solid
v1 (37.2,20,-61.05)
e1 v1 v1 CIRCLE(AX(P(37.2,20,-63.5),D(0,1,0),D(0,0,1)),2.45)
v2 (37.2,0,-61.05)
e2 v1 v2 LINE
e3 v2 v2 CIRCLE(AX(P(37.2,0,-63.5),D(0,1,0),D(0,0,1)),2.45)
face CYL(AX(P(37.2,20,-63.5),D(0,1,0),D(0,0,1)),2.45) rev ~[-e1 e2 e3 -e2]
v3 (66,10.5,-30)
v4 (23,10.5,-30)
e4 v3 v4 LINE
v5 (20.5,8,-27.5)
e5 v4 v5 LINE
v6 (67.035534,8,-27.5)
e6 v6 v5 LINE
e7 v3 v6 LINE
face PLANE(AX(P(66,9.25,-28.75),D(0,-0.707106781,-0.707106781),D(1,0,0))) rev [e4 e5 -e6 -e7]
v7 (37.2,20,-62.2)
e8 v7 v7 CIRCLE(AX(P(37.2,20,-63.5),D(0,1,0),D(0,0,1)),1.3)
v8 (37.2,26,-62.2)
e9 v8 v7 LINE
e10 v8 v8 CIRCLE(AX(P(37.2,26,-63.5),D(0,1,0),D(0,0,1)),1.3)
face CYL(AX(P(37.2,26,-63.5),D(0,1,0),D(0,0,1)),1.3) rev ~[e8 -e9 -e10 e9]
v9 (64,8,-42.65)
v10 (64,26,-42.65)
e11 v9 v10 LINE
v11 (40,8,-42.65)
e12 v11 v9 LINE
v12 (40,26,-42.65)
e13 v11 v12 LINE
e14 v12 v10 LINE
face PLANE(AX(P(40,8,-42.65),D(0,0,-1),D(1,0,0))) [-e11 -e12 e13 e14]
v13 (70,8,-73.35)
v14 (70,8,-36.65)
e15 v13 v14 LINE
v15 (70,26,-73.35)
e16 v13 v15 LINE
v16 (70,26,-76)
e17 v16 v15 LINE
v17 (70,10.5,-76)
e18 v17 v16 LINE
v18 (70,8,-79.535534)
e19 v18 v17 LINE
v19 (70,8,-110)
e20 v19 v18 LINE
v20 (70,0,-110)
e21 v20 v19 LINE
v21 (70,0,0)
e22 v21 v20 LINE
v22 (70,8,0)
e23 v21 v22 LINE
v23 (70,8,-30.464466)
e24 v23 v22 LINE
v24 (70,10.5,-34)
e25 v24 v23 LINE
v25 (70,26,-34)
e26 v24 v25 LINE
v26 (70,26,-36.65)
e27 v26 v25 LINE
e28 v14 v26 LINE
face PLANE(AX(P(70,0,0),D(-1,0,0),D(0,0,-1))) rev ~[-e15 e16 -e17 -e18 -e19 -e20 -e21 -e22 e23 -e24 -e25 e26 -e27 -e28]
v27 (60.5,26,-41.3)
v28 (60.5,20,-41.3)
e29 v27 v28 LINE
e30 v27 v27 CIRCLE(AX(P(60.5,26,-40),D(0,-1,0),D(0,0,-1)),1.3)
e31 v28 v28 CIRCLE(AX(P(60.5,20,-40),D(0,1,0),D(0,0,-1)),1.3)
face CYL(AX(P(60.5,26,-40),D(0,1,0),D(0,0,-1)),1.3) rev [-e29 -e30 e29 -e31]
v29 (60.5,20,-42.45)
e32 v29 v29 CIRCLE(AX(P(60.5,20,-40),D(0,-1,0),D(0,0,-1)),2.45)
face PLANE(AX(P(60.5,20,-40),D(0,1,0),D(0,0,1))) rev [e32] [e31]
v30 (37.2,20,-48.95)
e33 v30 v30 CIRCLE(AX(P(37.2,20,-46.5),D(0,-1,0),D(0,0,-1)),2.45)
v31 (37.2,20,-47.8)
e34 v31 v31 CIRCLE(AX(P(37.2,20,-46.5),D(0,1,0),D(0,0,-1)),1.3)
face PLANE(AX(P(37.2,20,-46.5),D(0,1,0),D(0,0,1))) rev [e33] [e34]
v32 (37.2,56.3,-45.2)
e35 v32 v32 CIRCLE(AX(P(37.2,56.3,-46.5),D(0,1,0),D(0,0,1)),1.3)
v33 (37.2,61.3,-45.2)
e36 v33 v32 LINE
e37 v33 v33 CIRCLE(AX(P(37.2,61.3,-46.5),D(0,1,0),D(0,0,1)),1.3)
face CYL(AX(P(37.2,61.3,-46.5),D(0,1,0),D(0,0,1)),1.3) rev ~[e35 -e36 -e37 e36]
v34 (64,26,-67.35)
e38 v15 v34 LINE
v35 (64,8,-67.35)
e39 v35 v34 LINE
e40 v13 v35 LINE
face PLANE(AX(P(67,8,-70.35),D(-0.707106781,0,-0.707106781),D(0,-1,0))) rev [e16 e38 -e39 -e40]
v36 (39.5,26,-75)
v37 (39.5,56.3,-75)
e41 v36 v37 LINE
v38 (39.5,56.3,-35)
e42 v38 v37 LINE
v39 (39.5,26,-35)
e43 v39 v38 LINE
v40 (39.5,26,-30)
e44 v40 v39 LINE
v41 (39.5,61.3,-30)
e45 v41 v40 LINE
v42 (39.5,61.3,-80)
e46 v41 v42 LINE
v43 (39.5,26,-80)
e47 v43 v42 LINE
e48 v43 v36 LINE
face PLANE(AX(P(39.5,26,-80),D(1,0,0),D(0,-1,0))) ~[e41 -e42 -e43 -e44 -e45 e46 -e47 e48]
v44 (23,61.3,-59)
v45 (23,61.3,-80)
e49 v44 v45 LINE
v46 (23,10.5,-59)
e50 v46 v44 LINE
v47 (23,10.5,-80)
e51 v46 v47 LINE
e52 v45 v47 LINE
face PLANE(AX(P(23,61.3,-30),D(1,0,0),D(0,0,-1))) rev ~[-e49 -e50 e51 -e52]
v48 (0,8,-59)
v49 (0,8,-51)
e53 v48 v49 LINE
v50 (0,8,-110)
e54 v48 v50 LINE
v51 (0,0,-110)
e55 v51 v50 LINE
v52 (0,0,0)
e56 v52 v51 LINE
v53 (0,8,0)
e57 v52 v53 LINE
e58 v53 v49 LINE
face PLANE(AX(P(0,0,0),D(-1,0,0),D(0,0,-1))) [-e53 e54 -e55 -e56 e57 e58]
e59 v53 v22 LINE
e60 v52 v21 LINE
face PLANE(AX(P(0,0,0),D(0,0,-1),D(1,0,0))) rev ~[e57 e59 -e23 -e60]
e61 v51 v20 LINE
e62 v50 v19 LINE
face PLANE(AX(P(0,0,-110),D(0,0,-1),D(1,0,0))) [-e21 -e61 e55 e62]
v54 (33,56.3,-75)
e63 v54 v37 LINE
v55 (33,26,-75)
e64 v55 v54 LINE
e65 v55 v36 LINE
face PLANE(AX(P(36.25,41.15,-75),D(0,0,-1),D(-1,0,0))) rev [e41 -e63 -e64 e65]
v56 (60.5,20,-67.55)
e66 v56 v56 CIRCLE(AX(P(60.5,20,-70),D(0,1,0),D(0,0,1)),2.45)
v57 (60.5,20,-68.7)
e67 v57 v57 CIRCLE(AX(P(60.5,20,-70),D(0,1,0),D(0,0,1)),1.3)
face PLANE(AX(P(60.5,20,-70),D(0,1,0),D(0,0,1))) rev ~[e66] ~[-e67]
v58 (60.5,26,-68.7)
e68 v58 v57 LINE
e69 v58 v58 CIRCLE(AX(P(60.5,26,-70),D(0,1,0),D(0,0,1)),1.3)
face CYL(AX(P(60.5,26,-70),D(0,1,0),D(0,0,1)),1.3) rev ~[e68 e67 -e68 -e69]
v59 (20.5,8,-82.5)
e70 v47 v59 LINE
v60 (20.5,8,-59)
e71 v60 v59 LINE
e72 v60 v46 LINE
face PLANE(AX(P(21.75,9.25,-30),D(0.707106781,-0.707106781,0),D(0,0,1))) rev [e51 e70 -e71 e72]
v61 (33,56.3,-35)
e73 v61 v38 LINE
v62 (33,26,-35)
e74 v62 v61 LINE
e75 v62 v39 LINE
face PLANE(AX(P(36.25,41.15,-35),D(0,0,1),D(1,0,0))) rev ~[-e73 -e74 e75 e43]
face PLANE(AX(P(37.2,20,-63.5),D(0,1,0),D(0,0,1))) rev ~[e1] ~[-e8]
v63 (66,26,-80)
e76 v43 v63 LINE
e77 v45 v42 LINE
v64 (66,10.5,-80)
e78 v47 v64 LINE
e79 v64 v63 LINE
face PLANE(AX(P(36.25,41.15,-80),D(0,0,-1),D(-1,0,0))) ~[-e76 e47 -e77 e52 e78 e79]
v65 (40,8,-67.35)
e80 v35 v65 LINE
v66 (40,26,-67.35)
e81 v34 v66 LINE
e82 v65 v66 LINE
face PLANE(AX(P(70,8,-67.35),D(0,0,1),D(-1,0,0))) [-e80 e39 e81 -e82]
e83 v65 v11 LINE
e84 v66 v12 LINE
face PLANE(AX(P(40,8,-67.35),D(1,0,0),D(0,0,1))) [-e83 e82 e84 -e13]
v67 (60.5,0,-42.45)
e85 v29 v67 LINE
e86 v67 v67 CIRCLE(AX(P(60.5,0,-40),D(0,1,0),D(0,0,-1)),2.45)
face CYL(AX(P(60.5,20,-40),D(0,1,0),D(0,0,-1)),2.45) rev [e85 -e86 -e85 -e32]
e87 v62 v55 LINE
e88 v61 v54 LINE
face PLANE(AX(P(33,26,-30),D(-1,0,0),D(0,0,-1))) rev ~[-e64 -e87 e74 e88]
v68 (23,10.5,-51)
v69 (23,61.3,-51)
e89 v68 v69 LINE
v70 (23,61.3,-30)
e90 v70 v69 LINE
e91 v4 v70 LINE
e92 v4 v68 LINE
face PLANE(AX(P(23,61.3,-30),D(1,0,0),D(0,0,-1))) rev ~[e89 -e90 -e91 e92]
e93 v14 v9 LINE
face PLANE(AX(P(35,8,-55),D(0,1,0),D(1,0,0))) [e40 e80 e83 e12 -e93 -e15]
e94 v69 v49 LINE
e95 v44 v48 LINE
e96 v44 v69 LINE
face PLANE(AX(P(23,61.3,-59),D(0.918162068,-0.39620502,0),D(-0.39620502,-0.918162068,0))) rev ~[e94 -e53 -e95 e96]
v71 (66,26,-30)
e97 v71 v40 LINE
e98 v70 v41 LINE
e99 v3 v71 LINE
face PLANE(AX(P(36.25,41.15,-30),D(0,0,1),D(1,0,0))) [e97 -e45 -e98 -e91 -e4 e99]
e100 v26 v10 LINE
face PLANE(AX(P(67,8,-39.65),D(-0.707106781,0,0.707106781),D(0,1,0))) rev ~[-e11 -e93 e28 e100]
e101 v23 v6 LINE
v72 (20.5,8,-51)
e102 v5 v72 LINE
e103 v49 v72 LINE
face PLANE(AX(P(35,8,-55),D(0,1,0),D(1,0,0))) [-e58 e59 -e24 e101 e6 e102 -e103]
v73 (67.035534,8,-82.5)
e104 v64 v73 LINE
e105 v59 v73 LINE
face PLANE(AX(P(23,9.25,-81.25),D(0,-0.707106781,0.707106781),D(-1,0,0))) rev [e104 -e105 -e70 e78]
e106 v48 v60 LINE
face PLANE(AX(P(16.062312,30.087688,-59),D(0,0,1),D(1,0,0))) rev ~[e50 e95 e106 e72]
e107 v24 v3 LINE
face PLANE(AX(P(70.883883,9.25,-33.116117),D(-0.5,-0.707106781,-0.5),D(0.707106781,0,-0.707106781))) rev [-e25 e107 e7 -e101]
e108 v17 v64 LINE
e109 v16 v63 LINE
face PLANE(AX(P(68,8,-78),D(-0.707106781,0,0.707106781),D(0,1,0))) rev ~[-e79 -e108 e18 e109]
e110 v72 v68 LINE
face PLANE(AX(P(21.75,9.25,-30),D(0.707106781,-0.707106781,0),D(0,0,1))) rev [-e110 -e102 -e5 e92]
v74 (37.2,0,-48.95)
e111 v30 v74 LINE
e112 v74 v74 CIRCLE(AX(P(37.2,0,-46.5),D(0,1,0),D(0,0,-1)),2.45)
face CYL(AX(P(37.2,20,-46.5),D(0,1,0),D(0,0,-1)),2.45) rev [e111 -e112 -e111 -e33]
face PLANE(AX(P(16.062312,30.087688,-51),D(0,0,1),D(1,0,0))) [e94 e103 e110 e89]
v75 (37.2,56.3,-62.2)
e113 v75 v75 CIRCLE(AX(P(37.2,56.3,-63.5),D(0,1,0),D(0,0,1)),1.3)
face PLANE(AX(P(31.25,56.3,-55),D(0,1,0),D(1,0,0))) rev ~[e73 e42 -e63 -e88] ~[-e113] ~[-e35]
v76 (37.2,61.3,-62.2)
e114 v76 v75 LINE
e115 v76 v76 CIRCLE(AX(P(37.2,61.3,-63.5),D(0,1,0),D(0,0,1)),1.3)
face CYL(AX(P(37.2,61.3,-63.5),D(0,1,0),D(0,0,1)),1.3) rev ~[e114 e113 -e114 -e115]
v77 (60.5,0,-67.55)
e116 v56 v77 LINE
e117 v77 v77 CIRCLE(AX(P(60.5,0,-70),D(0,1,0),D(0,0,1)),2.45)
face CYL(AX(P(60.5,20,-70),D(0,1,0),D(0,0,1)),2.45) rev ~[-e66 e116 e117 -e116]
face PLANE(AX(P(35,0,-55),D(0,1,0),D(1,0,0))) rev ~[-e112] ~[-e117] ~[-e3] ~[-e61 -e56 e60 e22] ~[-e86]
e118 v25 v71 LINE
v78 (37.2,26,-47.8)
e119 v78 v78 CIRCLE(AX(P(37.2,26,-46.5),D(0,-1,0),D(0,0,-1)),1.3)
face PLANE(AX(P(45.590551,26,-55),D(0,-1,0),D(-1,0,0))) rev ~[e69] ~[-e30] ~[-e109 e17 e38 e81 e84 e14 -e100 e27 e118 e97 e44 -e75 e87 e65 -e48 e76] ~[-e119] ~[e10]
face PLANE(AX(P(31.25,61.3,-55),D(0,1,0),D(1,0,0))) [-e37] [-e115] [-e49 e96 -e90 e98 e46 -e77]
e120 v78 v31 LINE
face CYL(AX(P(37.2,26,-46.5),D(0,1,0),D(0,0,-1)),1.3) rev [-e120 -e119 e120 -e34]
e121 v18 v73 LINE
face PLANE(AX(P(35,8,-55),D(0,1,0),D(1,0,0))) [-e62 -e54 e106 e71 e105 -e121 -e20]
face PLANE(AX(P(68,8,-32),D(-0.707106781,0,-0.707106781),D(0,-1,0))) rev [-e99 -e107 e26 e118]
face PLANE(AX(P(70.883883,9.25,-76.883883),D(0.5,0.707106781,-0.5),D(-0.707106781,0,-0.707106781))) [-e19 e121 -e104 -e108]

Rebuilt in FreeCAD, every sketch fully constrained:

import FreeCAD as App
import Part
import Sketcher
from FreeCAD import Vector
Q = App.Units.Quantity


def edges_at(feature, points):
    """Names of the edges that pass closest to the given points."""
    edges = feature.Shape.Edges
    near = lambda p: min(range(len(edges)), key=lambda i: edges[i].distToShape(Part.Vertex(*p))[0])
    return sorted({f"Edge{near(p) + 1}" for p in points})


def add_polygon(sketch, points):
    """Adds a closed chain of lines whose ends are joined by coincident constraints."""
    first, n = sketch.GeometryCount, len(points)
    for a, b in zip(points, points[1:] + points[:1]):
        sketch.addGeometry(Part.LineSegment(App.Vector(*a, 0), App.Vector(*b, 0)), False)
    for i in range(n):
        sketch.addConstraint(Sketcher.Constraint("Coincident", first + i, 2, first + (i + 1) % n, 1))

doc = App.newDocument("Part")
body = doc.addObject("PartDesign::Body", "Body")

sketch1 = doc.addObject("Sketcher::SketchObject", "Sketch")
body.addObject(sketch1)
sketch1.AttachmentSupport = (doc.XZ_Plane, [""])
sketch1.MapMode = "FlatFace"
add_polygon(sketch1, [(0, -110), (0, 0), (70, 0), (70, -110)])
sketch1.addConstraint([
    Sketcher.Constraint("Vertical", 0),
    Sketcher.Constraint("Horizontal", 1),
    Sketcher.Constraint("Vertical", 2),
    Sketcher.Constraint("Horizontal", 3),
    Sketcher.Constraint("Coincident", 0, 2, -1, 1),
    Sketcher.Constraint("DistanceX", 1, 1, 1, 2, Q("70 mm")),
    Sketcher.Constraint("DistanceY", 0, 1, 0, 2, Q("110 mm")),
])
pad1 = doc.addObject("PartDesign::Pad", "Pad")
body.addObject(pad1)
pad1.Profile = sketch1
pad1.Length = 8
pad1.Reversed = True

sketch2 = doc.addObject("Sketcher::SketchObject", "Sketch001")
body.addObject(sketch2)
sketch2.AttachmentSupport = (doc.XZ_Plane, [""])
sketch2.MapMode = "FlatFace"
sketch2.AttachmentOffset = App.Placement(Vector(0, 0, -8), App.Rotation())
add_polygon(sketch2, [(40, -67.35), (70, -67.35), (70, -80), (23, -80), (23, -30), (70, -30), (70, -42.65), (40, -42.65)])
sketch2.addConstraint([
    Sketcher.Constraint("Horizontal", 0),
    Sketcher.Constraint("Vertical", 1),
    Sketcher.Constraint("Horizontal", 2),
    Sketcher.Constraint("Vertical", 3),
    Sketcher.Constraint("Horizontal", 4),
    Sketcher.Constraint("Vertical", 5),
    Sketcher.Constraint("Horizontal", 6),
    Sketcher.Constraint("Vertical", 7),
    Sketcher.Constraint("Vertical", 1, 2, 4, 2),
    Sketcher.Constraint("Equal", 1, 5),
    Sketcher.Constraint("DistanceX", 0, 1, 0, 2, Q("30 mm")),
    Sketcher.Constraint("DistanceX", 2, 2, 2, 1, Q("47 mm")),
    Sketcher.Constraint("DistanceY", 3, 1, 3, 2, Q("50 mm")),
    Sketcher.Constraint("DistanceY", 7, 2, 7, 1, Q("24.7 mm")),
    Sketcher.Constraint("DistanceX", -1, 1, 0, 2, Q("70 mm")),
    Sketcher.Constraint("DistanceY", 1, 2, -1, 1, Q("80 mm")),
])
pad2 = doc.addObject("PartDesign::Pad", "Pad001")
body.addObject(pad2)
pad2.Profile = sketch2
pad2.Length = 18
pad2.Reversed = True

sketch3 = doc.addObject("Sketcher::SketchObject", "Sketch002")
body.addObject(sketch3)
sketch3.AttachmentSupport = (doc.XZ_Plane, [""])
sketch3.MapMode = "FlatFace"
sketch3.AttachmentOffset = App.Placement(Vector(0, 0, -26), App.Rotation())
sketch3.addGeometry([
    Part.Circle(Vector(60.5, -70, 0), Vector(0, 0, 1), 1.3),
    Part.Circle(Vector(37.2, -63.5, 0), Vector(0, 0, 1), 1.3),
], False)
sketch3.addConstraint([
    Sketcher.Constraint("Equal", 0, 1),
    Sketcher.Constraint("Diameter", 0, Q("2.6 mm")),
    Sketcher.Constraint("DistanceY", 0, 3, -1, 1, Q("70 mm")),
    Sketcher.Constraint("DistanceX", -1, 1, 0, 3, Q("60.5 mm")),
    Sketcher.Constraint("DistanceX", -1, 1, 1, 3, Q("37.2 mm")),
    Sketcher.Constraint("DistanceY", 1, 3, -1, 1, Q("63.5 mm")),
])
pocket1 = doc.addObject("PartDesign::Pocket", "Pocket")
body.addObject(pocket1)
pocket1.Profile = sketch3
pocket1.Type = "ThroughAll"
pocket1.Reversed = True

sketch4 = doc.addObject("Sketcher::SketchObject", "Sketch003")
body.addObject(sketch4)
sketch4.AttachmentSupport = (doc.XZ_Plane, [""])
sketch4.MapMode = "FlatFace"
sketch4.AttachmentOffset = App.Placement(Vector(0, 0, -20), App.Rotation())
sketch4.addGeometry([
    Part.Circle(Vector(37.2, -63.5, 0), Vector(0, 0, 1), 2.45),
    Part.Circle(Vector(60.5, -70, 0), Vector(0, 0, 1), 2.45),
], False)
sketch4.addConstraint([
    Sketcher.Constraint("Equal", 0, 1),
    Sketcher.Constraint("Diameter", 0, Q("4.9 mm")),
    Sketcher.Constraint("DistanceY", 1, 3, -1, 1, Q("70 mm")),
    Sketcher.Constraint("DistanceX", -1, 1, 0, 3, Q("37.2 mm")),
    Sketcher.Constraint("DistanceY", 0, 3, -1, 1, Q("63.5 mm")),
    Sketcher.Constraint("DistanceX", -1, 1, 1, 3, Q("60.5 mm")),
])
pocket2 = doc.addObject("PartDesign::Pocket", "Pocket001")
body.addObject(pocket2)
pocket2.Profile = sketch4
pocket2.Type = "ThroughAll"
pocket2.Reversed = True
doc.recompute()

datumplane = doc.addObject("PartDesign::Plane", "DatumPlane")
body.addObject(datumplane)
datumplane.AttachmentSupport = (doc.XY_Plane, [""])
datumplane.MapMode = "FlatFace"
datumplane.AttachmentOffset = App.Placement(Vector(0, 0, -55), App.Rotation())
mirrored = doc.addObject("PartDesign::Mirrored", "Mirrored")
body.addObject(mirrored)
mirrored.Originals = [pocket1, pocket2]
mirrored.MirrorPlane = (datumplane, [""])
body.Tip = mirrored
doc.recompute()

chamfer = doc.addObject("PartDesign::Chamfer", "Chamfer")
body.addObject(chamfer)
chamfer.Base = (mirrored, edges_at(mirrored, [(70, 17, -67.35), (70, 17, -42.65)]))
chamfer.Size = 6
doc.recompute()

chamfer2 = doc.addObject("PartDesign::Chamfer", "Chamfer001")
body.addObject(chamfer2)
chamfer2.Base = (chamfer, edges_at(chamfer, [(70, 17, -80), (70, 17, -30)]))
chamfer2.Size = 4
doc.recompute()

chamfer3 = doc.addObject("PartDesign::Chamfer", "Chamfer002")
body.addObject(chamfer3)
chamfer3.Base = (chamfer2, edges_at(chamfer2, [
    (44.5, 8, -80),
    (68, 8, -78),
    (68, 8, -32),
    (23, 8, -55),
    (44.5, 8, -30),
]))
chamfer3.Size = 2.5

sketch5 = doc.addObject("Sketcher::SketchObject", "Sketch004")
body.addObject(sketch5)
sketch5.AttachmentSupport = (doc.XZ_Plane, [""])
sketch5.MapMode = "FlatFace"
sketch5.AttachmentOffset = App.Placement(Vector(0, 0, -26), App.Rotation())
add_polygon(sketch5, [(23, -80), (23, -30), (33, -30), (33, -80)])
sketch5.addConstraint([
    Sketcher.Constraint("Vertical", 0),
    Sketcher.Constraint("Horizontal", 1),
    Sketcher.Constraint("Vertical", 2),
    Sketcher.Constraint("Horizontal", 3),
    Sketcher.Constraint("DistanceX", 1, 1, 1, 2, Q("10 mm")),
    Sketcher.Constraint("DistanceY", 0, 1, 0, 2, Q("50 mm")),
    Sketcher.Constraint("DistanceX", -1, 1, 0, 2, Q("23 mm")),
    Sketcher.Constraint("DistanceY", 0, 2, -1, 1, Q("30 mm")),
])
pad3 = doc.addObject("PartDesign::Pad", "Pad002")
body.addObject(pad3)
pad3.Profile = sketch5
pad3.Length = 30.3
pad3.Reversed = True

sketch6 = doc.addObject("Sketcher::SketchObject", "Sketch005")
body.addObject(sketch6)
sketch6.AttachmentSupport = (doc.XZ_Plane, [""])
sketch6.MapMode = "FlatFace"
sketch6.AttachmentOffset = App.Placement(Vector(0, 0, -61.3), App.Rotation())
add_polygon(sketch6, [(23, -80), (23, -30), (39.5, -30), (39.5, -80)])
sketch6.addGeometry(Part.Circle(Vector(37.2, -46.5, 0), Vector(0, 0, 1), 1.3), False)
sketch6.addGeometry(Part.Circle(Vector(37.2, -63.5, 0), Vector(0, 0, 1), 1.3), False)
sketch6.addConstraint([
    Sketcher.Constraint("Vertical", 0),
    Sketcher.Constraint("Horizontal", 1),
    Sketcher.Constraint("Vertical", 2),
    Sketcher.Constraint("Horizontal", 3),
    Sketcher.Constraint("Equal", 4, 5),
    Sketcher.Constraint("Vertical", 4, 3, 5, 3),
    Sketcher.Constraint("Diameter", 4, Q("2.6 mm")),
    Sketcher.Constraint("DistanceY", 0, 1, 0, 2, Q("50 mm")),
    Sketcher.Constraint("DistanceX", 1, 1, 1, 2, Q("16.5 mm")),
    Sketcher.Constraint("DistanceX", -1, 1, 0, 2, Q("23 mm")),
    Sketcher.Constraint("DistanceY", 0, 2, -1, 1, Q("30 mm")),
    Sketcher.Constraint("DistanceY", 5, 3, 4, 3, Q("17 mm")),
    Sketcher.Constraint("DistanceX", -1, 1, 4, 3, Q("37.2 mm")),
    Sketcher.Constraint("DistanceY", 4, 3, -1, 1, Q("46.5 mm")),
])
pad4 = doc.addObject("PartDesign::Pad", "Pad003")
body.addObject(pad4)
pad4.Profile = sketch6
pad4.Length = 5

sketch7 = doc.addObject("Sketcher::SketchObject", "Sketch006")
body.addObject(sketch7)
sketch7.AttachmentSupport = (doc.XY_Plane, [""])
sketch7.MapMode = "FlatFace"
sketch7.AttachmentOffset = App.Placement(Vector(0, 0, -30), App.Rotation())
add_polygon(sketch7, [(33, 56.3), (33, 26), (39.5, 26), (39.5, 56.3)])
sketch7.addConstraint([
    Sketcher.Constraint("Vertical", 0),
    Sketcher.Constraint("Horizontal", 1),
    Sketcher.Constraint("Vertical", 2),
    Sketcher.Constraint("Horizontal", 3),
    Sketcher.Constraint("DistanceX", 1, 1, 1, 2, Q("6.5 mm")),
    Sketcher.Constraint("DistanceY", 0, 2, 0, 1, Q("30.3 mm")),
    Sketcher.Constraint("DistanceX", -1, 1, 0, 2, Q("33 mm")),
    Sketcher.Constraint("DistanceY", -1, 1, 0, 2, Q("26 mm")),
])
pad5 = doc.addObject("PartDesign::Pad", "Pad004")
body.addObject(pad5)
pad5.Profile = sketch7
pad5.Length = 5
pad5.Reversed = True
doc.recompute()

datumplane2 = doc.addObject("PartDesign::Plane", "DatumPlane001")
body.addObject(datumplane2)
datumplane2.AttachmentSupport = (doc.XY_Plane, [""])
datumplane2.MapMode = "FlatFace"
datumplane2.AttachmentOffset = App.Placement(Vector(0, 0, -55), App.Rotation())
mirrored2 = doc.addObject("PartDesign::Mirrored", "Mirrored001")
body.addObject(mirrored2)
mirrored2.Originals = [pad5]
mirrored2.MirrorPlane = (datumplane2, [""])
body.Tip = mirrored2

sketch8 = doc.addObject("Sketcher::SketchObject", "Sketch007")
body.addObject(sketch8)
sketch8.AttachmentSupport = (doc.XY_Plane, [""])
sketch8.MapMode = "FlatFace"
sketch8.AttachmentOffset = App.Placement(Vector(0, 0, -55), App.Rotation())
add_polygon(sketch8, [(0, 8), (23, 8), (23, 61.3)])
sketch8.addConstraint([
    Sketcher.Constraint("Horizontal", 0),
    Sketcher.Constraint("Vertical", 1),
    Sketcher.Constraint("PointOnObject", 2, 2, -2),
    Sketcher.Constraint("DistanceX", 0, 1, 0, 2, Q("23 mm")),
    Sketcher.Constraint("DistanceY", 1, 1, 1, 2, Q("53.3 mm")),
    Sketcher.Constraint("DistanceY", -1, 1, 0, 2, Q("8 mm")),
])
pad6 = doc.addObject("PartDesign::Pad", "Pad005")
body.addObject(pad6)
pad6.Profile = sketch8
pad6.Type = "TwoLengths"
pad6.Length = 4
pad6.Length2 = 4

doc.recompute()
